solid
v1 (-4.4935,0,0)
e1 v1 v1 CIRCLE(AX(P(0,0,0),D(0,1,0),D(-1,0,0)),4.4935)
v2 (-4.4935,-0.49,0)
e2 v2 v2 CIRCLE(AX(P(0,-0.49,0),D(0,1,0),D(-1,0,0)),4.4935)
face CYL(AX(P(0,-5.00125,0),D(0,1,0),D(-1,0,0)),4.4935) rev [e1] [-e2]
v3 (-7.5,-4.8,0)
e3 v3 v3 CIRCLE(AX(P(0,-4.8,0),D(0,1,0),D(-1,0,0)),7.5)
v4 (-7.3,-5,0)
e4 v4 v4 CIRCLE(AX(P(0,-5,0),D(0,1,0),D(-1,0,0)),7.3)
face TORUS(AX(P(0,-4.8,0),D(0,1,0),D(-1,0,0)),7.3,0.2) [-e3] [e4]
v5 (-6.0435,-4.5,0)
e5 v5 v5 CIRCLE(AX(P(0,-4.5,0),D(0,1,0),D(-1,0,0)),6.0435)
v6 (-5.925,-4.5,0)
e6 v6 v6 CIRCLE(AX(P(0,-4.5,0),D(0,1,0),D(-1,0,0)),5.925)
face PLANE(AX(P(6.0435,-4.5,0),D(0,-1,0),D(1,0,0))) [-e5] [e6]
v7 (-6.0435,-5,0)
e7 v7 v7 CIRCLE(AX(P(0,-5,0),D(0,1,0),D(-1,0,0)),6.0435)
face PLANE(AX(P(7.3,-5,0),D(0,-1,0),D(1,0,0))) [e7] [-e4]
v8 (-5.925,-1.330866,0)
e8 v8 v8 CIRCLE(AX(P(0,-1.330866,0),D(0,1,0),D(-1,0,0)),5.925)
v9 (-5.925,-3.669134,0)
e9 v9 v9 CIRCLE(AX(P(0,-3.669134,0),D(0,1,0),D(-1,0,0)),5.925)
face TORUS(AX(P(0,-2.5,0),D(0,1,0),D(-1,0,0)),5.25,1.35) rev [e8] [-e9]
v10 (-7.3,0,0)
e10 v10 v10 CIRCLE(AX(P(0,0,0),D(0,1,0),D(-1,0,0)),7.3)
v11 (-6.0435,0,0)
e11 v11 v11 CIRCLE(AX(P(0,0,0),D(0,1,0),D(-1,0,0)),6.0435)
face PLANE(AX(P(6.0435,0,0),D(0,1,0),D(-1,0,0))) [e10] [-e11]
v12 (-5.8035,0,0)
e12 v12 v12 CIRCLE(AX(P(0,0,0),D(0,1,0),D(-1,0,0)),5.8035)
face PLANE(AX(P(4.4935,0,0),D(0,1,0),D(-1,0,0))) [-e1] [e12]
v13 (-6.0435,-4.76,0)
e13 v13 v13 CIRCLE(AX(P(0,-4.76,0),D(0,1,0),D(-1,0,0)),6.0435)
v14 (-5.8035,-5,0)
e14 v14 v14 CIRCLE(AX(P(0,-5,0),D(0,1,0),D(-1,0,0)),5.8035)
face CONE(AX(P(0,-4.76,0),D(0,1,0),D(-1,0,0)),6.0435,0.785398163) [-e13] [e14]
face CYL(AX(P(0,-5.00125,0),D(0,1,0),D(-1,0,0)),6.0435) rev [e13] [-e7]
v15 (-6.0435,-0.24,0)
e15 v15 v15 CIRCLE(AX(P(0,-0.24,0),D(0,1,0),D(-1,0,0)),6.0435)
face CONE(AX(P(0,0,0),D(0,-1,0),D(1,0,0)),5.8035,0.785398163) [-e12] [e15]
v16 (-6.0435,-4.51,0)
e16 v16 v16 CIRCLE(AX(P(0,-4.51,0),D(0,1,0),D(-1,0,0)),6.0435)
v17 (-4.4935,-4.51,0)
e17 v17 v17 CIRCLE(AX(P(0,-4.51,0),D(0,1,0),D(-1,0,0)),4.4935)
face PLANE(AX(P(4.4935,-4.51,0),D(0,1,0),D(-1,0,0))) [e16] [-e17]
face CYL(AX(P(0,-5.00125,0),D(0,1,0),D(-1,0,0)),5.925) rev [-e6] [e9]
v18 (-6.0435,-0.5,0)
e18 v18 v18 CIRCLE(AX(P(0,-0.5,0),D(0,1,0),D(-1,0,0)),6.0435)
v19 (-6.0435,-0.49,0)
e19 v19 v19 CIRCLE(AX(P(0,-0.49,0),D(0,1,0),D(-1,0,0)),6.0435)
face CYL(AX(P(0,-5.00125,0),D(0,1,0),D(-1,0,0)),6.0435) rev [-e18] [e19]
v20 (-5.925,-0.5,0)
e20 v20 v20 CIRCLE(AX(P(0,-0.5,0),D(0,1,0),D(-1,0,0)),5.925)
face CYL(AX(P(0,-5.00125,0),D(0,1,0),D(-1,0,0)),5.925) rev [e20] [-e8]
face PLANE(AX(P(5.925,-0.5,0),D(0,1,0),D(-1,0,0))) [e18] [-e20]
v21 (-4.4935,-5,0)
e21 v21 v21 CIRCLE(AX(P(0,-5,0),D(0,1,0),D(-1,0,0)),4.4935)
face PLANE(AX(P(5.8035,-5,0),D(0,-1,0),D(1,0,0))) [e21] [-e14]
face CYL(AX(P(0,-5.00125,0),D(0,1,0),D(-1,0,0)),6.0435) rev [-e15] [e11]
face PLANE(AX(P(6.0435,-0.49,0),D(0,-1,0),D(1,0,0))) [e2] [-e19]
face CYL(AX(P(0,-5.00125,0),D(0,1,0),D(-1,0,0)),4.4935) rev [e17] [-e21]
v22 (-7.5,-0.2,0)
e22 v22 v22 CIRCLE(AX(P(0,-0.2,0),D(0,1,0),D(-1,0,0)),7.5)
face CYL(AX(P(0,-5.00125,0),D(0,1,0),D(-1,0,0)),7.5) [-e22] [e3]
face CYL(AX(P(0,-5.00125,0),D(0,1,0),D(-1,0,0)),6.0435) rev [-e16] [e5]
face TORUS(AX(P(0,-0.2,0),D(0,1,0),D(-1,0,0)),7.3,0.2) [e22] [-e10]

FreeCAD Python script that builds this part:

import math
import FreeCAD as App
import Part
import Sketcher
from FreeCAD import Vector
Q = App.Units.Quantity

doc = App.newDocument("Part")
params = doc.addObject("Spreadsheet::Sheet", "Params")
for row, (alias, value) in enumerate([
    ("sketch1_radius", "0.2 mm"),
    ("sketch1_radius2", "1.35 mm"),
    ("sketch1_height", "4.6 mm"),
    ("sketch1_width", "1.55 mm"),
    ("sketch1_width2", "1.31 mm"),
    ("revolution_angle", "360 deg"),
], start=1):
    params.set(f"A{row}", alias)
    params.set(f"B{row}", "=" + value)
    params.setAlias(f"B{row}", alias)

body = doc.addObject("PartDesign::Body", "Body")

sketch1 = body.newObject("Sketcher::SketchObject", "Sketch")
sketch1.AttachmentSupport = (doc.getObject("XY_Plane"), [""])
sketch1.MapMode = "FlatFace"
sketch1.addGeometry(Part.LineSegment(Vector(5.925, -4.5, 0), Vector(5.925, -3.669134, 0)), False)
sketch1.addGeometry(Part.ArcOfCircle(Part.Circle(Vector(5.25, -2.5, 0), Vector(0, 0, 1), 1.35), math.radians(-60), math.radians(60)), False)
sketch1.addGeometry(Part.LineSegment(Vector(5.925, -1.330866, 0), Vector(5.925, -0.5, 0)), False)
sketch1.addGeometry(Part.LineSegment(Vector(5.925, -0.5, 0), Vector(6.0435, -0.5, 0)), False)
sketch1.addGeometry(Part.LineSegment(Vector(6.0435, -0.5, 0), Vector(6.0435, -0.49, 0)), False)
sketch1.addGeometry(Part.LineSegment(Vector(6.0435, -0.49, 0), Vector(4.4935, -0.49, 0)), False)
sketch1.addGeometry(Part.LineSegment(Vector(4.4935, -0.49, 0), Vector(4.4935, 0, 0)), False)
sketch1.addGeometry(Part.LineSegment(Vector(4.4935, 0, 0), Vector(5.8035, 0, 0)), False)
sketch1.addGeometry(Part.LineSegment(Vector(5.8035, 0, 0), Vector(6.0435, -0.24, 0)), False)
sketch1.addGeometry(Part.LineSegment(Vector(6.0435, -0.24, 0), Vector(6.0435, 0, 0)), False)
sketch1.addGeometry(Part.LineSegment(Vector(6.0435, 0, 0), Vector(7.3, 0, 0)), False)
sketch1.addGeometry(Part.ArcOfCircle(Part.Circle(Vector(7.3, -0.2, 0), Vector(0, 0, 1), 0.2), math.radians(0), math.radians(90)), False)
sketch1.addGeometry(Part.LineSegment(Vector(7.5, -0.2, 0), Vector(7.5, -4.8, 0)), False)
sketch1.addGeometry(Part.ArcOfCircle(Part.Circle(Vector(7.3, -4.8, 0), Vector(0, 0, 1), 0.2), math.radians(-90), math.radians(0)), False)
sketch1.addGeometry(Part.LineSegment(Vector(7.3, -5, 0), Vector(6.0435, -5, 0)), False)
sketch1.addGeometry(Part.LineSegment(Vector(6.0435, -5, 0), Vector(6.0435, -4.76, 0)), False)
sketch1.addGeometry(Part.LineSegment(Vector(6.0435, -4.76, 0), Vector(5.8035, -5, 0)), False)
sketch1.addGeometry(Part.LineSegment(Vector(5.8035, -5, 0), Vector(4.4935, -5, 0)), False)
sketch1.addGeometry(Part.LineSegment(Vector(4.4935, -5, 0), Vector(4.4935, -4.51, 0)), False)
sketch1.addGeometry(Part.LineSegment(Vector(4.4935, -4.51, 0), Vector(6.0435, -4.51, 0)), False)
sketch1.addGeometry(Part.LineSegment(Vector(6.0435, -4.51, 0), Vector(6.0435, -4.5, 0)), False)
sketch1.addGeometry(Part.LineSegment(Vector(6.0435, -4.5, 0), Vector(5.925, -4.5, 0)), False)
sketch1.addConstraint(Sketcher.Constraint("Coincident", 0, 2, 1, 1))
sketch1.addConstraint(Sketcher.Constraint("Coincident", 1, 2, 2, 1))
sketch1.addConstraint(Sketcher.Constraint("Coincident", 2, 2, 3, 1))
sketch1.addConstraint(Sketcher.Constraint("Coincident", 3, 2, 4, 1))
sketch1.addConstraint(Sketcher.Constraint("Coincident", 4, 2, 5, 1))
sketch1.addConstraint(Sketcher.Constraint("Coincident", 5, 2, 6, 1))
sketch1.addConstraint(Sketcher.Constraint("Coincident", 6, 2, 7, 1))
sketch1.addConstraint(Sketcher.Constraint("Coincident", 7, 2, 8, 1))
sketch1.addConstraint(Sketcher.Constraint("Coincident", 8, 2, 9, 1))
sketch1.addConstraint(Sketcher.Constraint("Coincident", 9, 2, 10, 1))
sketch1.addConstraint(Sketcher.Constraint("Tangent", 10, 2, 11, 2))
sketch1.addConstraint(Sketcher.Constraint("Tangent", 11, 1, 12, 1))
sketch1.addConstraint(Sketcher.Constraint("Tangent", 12, 2, 13, 2))
sketch1.addConstraint(Sketcher.Constraint("Tangent", 13, 1, 14, 1))
sketch1.addConstraint(Sketcher.Constraint("Coincident", 14, 2, 15, 1))
sketch1.addConstraint(Sketcher.Constraint("Coincident", 15, 2, 16, 1))
sketch1.addConstraint(Sketcher.Constraint("Coincident", 16, 2, 17, 1))
sketch1.addConstraint(Sketcher.Constraint("Coincident", 17, 2, 18, 1))
sketch1.addConstraint(Sketcher.Constraint("Coincident", 18, 2, 19, 1))
sketch1.addConstraint(Sketcher.Constraint("Coincident", 19, 2, 20, 1))
sketch1.addConstraint(Sketcher.Constraint("Coincident", 20, 2, 21, 1))
sketch1.addConstraint(Sketcher.Constraint("Coincident", 21, 2, 0, 1))
sketch1.addConstraint(Sketcher.Constraint("Vertical", 0))
sketch1.addConstraint(Sketcher.Constraint("Vertical", 2))
sketch1.addConstraint(Sketcher.Constraint("Horizontal", 3))
sketch1.addConstraint(Sketcher.Constraint("Vertical", 4))
sketch1.addConstraint(Sketcher.Constraint("Horizontal", 5))
sketch1.addConstraint(Sketcher.Constraint("Vertical", 6))
sketch1.addConstraint(Sketcher.Constraint("Horizontal", 7))
sketch1.addConstraint(Sketcher.Constraint("Vertical", 9))
sketch1.addConstraint(Sketcher.Constraint("Horizontal", 10))
sketch1.addConstraint(Sketcher.Constraint("Vertical", 12))
sketch1.addConstraint(Sketcher.Constraint("Horizontal", 14))
sketch1.addConstraint(Sketcher.Constraint("Vertical", 15))
sketch1.addConstraint(Sketcher.Constraint("Horizontal", 17))
sketch1.addConstraint(Sketcher.Constraint("Vertical", 18))
sketch1.addConstraint(Sketcher.Constraint("Horizontal", 19))
sketch1.addConstraint(Sketcher.Constraint("Vertical", 20))
sketch1.addConstraint(Sketcher.Constraint("Horizontal", 21))
sketch1.addConstraint(Sketcher.Constraint("Equal", 11, 13))
sketch1.addConstraint(Sketcher.Constraint("PointOnObject", 6, 2, -1))
sketch1.addConstraint(Sketcher.Constraint("PointOnObject", 9, 2, -1))
sketch1.addConstraint(Sketcher.Constraint("Perpendicular", 8, 16))
sketch1.addConstraint(Sketcher.Constraint("Horizontal", 14, 2, 16, 2))
sketch1.addConstraint(Sketcher.Constraint("Vertical", 0, 2, 1, 2))
sketch1.addConstraint(Sketcher.Constraint("Vertical", 4, 2, 8, 2))
sketch1.addConstraint(Sketcher.Constraint("Vertical", 9, 2, 14, 2))
sketch1.addConstraint(Sketcher.Constraint("Vertical", 7, 2, 16, 2))
sketch1.addConstraint(Sketcher.Constraint("Vertical", 6, 2, 17, 2))
sketch1.addConstraint(Sketcher.Constraint("Vertical", 15, 2, 19, 2))
sketch1.addConstraint(Sketcher.Constraint("Equal", 0, 2))
sketch1.addConstraint(Sketcher.Constraint("Equal", 9, 15))
sketch1.addConstraint(Sketcher.Constraint("Equal", 6, 18))
sketch1.addConstraint(Sketcher.Constraint("Equal", 4, 20))
sketch1.addConstraint(Sketcher.Constraint("Radius", 11, Q("0.2 mm")))
sketch1.addConstraint(Sketcher.Constraint("Radius", 1, Q("1.35 mm")))
sketch1.addConstraint(Sketcher.Constraint("DistanceY", 12, 2, 12, 1, Q("4.6 mm")))
sketch1.addConstraint(Sketcher.Constraint("DistanceY", 1, 3, 2, 2, Q("2 mm")))
sketch1.addConstraint(Sketcher.Constraint("DistanceX", 5, 2, 5, 1, Q("1.55 mm")))
sketch1.addConstraint(Sketcher.Constraint("DistanceX", 7, 1, 7, 2, Q("1.31 mm")))
sketch1.addConstraint(Sketcher.Constraint("DistanceY", 4, 1, 4, 2, Q("0.01 mm")))
sketch1.addConstraint(Sketcher.Constraint("DistanceX", -1, 1, 11, 3, Q("7.3 mm")))
sketch1.addConstraint(Sketcher.Constraint("DistanceX", -1, 1, 1, 3, Q("5.25 mm")))
sketch1.addConstraint(Sketcher.Constraint("DistanceX", 3, 1, 3, 2, Q("0.1185 mm")))
sketch1.addConstraint(Sketcher.Constraint("DistanceX", 10, 1, 10, 2, Q("1.2565 mm")))
sketch1.setExpression("Constraints[54]", "Params.sketch1_radius")
sketch1.setExpression("Constraints[55]", "Params.sketch1_radius2")
sketch1.setExpression("Constraints[56]", "Params.sketch1_height")
sketch1.setExpression("Constraints[58]", "Params.sketch1_width")
sketch1.setExpression("Constraints[59]", "Params.sketch1_width2")
revolution = body.newObject("PartDesign::Revolution", "Revolution")
revolution.Profile = sketch1
revolution.ReferenceAxis = (sketch1, ["V_Axis"])
revolution.setExpression("Angle", "Params.revolution_angle")

doc.recompute()
